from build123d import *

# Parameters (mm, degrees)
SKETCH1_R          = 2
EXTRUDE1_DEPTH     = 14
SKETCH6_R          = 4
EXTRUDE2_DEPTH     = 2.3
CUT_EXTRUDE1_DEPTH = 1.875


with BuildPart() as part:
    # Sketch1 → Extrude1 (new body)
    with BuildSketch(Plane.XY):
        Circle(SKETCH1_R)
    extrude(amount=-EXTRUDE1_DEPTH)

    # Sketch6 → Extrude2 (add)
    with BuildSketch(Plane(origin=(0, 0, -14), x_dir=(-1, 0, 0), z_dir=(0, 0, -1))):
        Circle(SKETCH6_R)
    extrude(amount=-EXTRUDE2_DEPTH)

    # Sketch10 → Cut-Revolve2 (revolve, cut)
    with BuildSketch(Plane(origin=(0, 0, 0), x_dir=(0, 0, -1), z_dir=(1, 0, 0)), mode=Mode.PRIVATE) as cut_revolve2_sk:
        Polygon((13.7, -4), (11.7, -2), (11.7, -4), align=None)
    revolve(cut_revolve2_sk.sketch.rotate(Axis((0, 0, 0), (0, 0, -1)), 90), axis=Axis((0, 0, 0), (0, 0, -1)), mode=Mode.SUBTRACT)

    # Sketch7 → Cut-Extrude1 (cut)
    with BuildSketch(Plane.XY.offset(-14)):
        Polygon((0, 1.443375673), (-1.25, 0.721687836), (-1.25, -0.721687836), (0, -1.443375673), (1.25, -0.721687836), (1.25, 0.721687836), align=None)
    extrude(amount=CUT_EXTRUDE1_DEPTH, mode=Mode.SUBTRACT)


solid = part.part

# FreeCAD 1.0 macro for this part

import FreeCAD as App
import Part
import Sketcher
Q = App.Units.Quantity


def add_polygon(sketch, points):
    """Adds a closed chain of lines whose ends are joined by coincident constraints."""
    first, n = sketch.GeometryCount, len(points)
    for a, b in zip(points, points[1:] + points[:1]):
        sketch.addGeometry(Part.LineSegment(App.Vector(*a, 0), App.Vector(*b, 0)), False)
    for i in range(n):
        sketch.addConstraint(Sketcher.Constraint("Coincident", first + i, 2, first + (i + 1) % n, 1))

doc = App.newDocument("Part")
body = doc.addObject("PartDesign::Body", "Body")

# Sketch on XY plane
sketch1 = body.newObject("Sketcher::SketchObject", "Sketch")
sketch1.AttachmentSupport = (doc.getObject("XY_Plane"), [""])
sketch1.MapMode = "FlatFace"
sketch1.addGeometry(Part.Circle(App.Vector(0, 0, 0), App.Vector(0, 0, 1), 2), False)
sketch1.addConstraint([
    Sketcher.Constraint("Coincident", 0, 3, -1, 1),
    Sketcher.Constraint("Diameter", 0, 4.0),
])
pad1 = body.newObject("PartDesign::Pad", "Pad")
pad1.Profile = sketch1
pad1.Length = 14
pad1.Reversed = True

# Sketch on XY plane
sketch2 = body.newObject("Sketcher::SketchObject", "Sketch001")
sketch2.AttachmentSupport = (doc.getObject("XY_Plane"), [""])
sketch2.MapMode = "FlatFace"
sketch2.AttachmentOffset = App.Placement(App.Vector(0, 0, -14), App.Rotation())
sketch2.addGeometry(Part.Circle(App.Vector(0, 0, 0), App.Vector(0, 0, 1), 4), False)
sketch2.addConstraint([
    Sketcher.Constraint("Coincident", 0, 3, -1, 1),
    Sketcher.Constraint("Diameter", 0, 8.0),
])
pad2 = body.newObject("PartDesign::Pad", "Pad001")
pad2.Profile = sketch2
pad2.Length = 2.3

# Sketch on YZ plane
sketch3 = body.newObject("Sketcher::SketchObject", "Sketch002")
sketch3.AttachmentSupport = (doc.getObject("YZ_Plane"), [""])
sketch3.MapMode = "FlatFace"
add_polygon(sketch3, [(-4, -13.7), (-2, -11.7), (-4, -11.7)])  # lines 0-2
sketch3.addConstraint([
    Sketcher.Constraint("Horizontal", 1),
    Sketcher.Constraint("Vertical", 2),
    Sketcher.Constraint("Equal", 1, 2),
    Sketcher.Constraint("DistanceX", 1, 2, 1, 1, 2.0),
    Sketcher.Constraint("DistanceX", 0, 2, -1, 1, 2.0),
    Sketcher.Constraint("DistanceY", 0, 2, -1, 1, 11.7),
])
groove = body.newObject("PartDesign::Groove", "Groove")
groove.Profile = sketch3
groove.ReferenceAxis = (sketch3, ["V_Axis"])
groove.Angle = 360

# Sketch on XY plane
sketch4 = body.newObject("Sketcher::SketchObject", "Sketch003")
sketch4.AttachmentSupport = (doc.getObject("XY_Plane"), [""])
sketch4.MapMode = "FlatFace"
sketch4.AttachmentOffset = App.Placement(App.Vector(0, 0, -14), App.Rotation())
add_polygon(sketch4, [(0, 1.443376), (-1.25, 0.721688), (-1.25, -0.721688), (0, -1.443376), (1.25, -0.721688), (1.25, 0.721688)])  # lines 0-5
sketch4.addConstraint([
    Sketcher.Constraint("Vertical", 1),
    Sketcher.Constraint("Vertical", 4),
    Sketcher.Constraint("Symmetric", 0, 2, 3, 2, -1, 1),
    Sketcher.Constraint("Symmetric", 2, 2, 5, 2, -1, 1),
    Sketcher.Constraint("PointOnObject", 2, 2, -2),
    Sketcher.Constraint("Parallel", 2, 5),
    Sketcher.Constraint("Horizontal", 1, 2, 3, 2),
    Sketcher.Constraint("Angle", 0, Q("-150 deg")),
    Sketcher.Constraint("DistanceX", 1, 2, 3, 2, 2.5),
    Sketcher.Constraint("DistanceY", 1, 2, 1, 1, 1.443376),
])
pocket1 = body.newObject("PartDesign::Pocket", "Pocket")
pocket1.Profile = sketch4
pocket1.Length = 1.875
pocket1.Reversed = True

doc.recompute()
